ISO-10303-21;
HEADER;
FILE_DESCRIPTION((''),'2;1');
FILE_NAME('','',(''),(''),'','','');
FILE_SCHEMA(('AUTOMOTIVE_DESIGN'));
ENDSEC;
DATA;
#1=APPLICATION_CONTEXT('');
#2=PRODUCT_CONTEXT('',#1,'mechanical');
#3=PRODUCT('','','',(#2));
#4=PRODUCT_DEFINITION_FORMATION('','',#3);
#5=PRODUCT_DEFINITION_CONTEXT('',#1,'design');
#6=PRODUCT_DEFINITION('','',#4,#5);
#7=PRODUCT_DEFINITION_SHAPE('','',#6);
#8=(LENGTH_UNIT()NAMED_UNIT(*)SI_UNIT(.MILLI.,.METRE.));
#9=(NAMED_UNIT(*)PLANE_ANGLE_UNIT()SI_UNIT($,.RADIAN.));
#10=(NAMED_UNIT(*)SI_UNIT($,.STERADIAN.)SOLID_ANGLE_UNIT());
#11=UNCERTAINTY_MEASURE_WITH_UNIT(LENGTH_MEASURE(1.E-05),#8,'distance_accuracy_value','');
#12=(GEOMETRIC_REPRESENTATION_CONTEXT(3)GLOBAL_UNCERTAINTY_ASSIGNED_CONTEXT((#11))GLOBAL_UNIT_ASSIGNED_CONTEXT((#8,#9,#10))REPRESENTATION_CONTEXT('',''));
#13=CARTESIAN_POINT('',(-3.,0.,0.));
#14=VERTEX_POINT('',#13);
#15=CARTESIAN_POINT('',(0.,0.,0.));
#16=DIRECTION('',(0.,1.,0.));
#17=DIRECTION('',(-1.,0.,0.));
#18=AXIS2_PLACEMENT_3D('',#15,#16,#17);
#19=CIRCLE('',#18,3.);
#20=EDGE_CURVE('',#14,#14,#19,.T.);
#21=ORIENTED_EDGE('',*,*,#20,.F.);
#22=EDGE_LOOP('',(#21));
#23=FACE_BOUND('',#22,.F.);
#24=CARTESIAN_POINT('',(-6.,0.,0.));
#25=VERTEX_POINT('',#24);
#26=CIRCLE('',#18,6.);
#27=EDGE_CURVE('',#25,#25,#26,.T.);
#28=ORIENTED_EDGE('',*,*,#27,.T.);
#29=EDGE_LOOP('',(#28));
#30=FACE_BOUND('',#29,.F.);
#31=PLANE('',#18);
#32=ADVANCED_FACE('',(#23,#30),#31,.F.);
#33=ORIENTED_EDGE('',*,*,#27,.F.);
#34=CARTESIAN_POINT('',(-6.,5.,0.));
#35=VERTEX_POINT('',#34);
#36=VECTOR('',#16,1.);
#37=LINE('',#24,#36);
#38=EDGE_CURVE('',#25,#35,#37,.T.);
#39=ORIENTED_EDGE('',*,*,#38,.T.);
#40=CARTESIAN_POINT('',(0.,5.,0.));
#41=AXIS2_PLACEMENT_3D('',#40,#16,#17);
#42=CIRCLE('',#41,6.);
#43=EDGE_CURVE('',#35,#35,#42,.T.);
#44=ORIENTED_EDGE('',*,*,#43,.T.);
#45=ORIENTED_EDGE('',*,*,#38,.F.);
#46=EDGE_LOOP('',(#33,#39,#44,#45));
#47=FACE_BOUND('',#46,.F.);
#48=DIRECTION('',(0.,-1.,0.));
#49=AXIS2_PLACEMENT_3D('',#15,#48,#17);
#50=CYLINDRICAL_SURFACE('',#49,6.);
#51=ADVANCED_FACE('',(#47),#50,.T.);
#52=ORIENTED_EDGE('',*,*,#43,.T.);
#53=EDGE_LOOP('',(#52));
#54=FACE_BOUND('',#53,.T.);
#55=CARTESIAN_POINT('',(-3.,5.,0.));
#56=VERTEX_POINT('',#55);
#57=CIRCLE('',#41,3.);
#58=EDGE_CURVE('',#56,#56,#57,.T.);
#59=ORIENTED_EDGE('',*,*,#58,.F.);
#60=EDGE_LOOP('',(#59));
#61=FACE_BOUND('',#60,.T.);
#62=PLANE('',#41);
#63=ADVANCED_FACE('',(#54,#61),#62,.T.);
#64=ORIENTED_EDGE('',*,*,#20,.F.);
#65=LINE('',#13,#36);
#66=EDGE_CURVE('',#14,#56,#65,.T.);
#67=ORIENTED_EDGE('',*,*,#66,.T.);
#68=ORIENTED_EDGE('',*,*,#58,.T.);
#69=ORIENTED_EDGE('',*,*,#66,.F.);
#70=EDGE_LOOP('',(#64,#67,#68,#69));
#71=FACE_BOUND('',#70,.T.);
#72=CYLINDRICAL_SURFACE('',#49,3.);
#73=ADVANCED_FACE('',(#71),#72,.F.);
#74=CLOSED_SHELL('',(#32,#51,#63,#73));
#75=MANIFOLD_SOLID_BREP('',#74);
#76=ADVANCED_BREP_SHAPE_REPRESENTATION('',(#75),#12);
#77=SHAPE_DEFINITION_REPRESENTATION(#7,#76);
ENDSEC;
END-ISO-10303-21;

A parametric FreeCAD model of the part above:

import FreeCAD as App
import Part
import Sketcher
Q = App.Units.Quantity

doc = App.newDocument("Part")
body = doc.addObject("PartDesign::Body", "Body")

# Sketch on XZ plane
sketch1 = body.newObject("Sketcher::SketchObject", "Sketch")
sketch1.AttachmentSupport = (doc.getObject("XZ_Plane"), [""])
sketch1.MapMode = "FlatFace"
sketch1.addGeometry([
    Part.Circle(App.Vector(0, 0, 0), App.Vector(0, 0, 1), 6),
    Part.Circle(App.Vector(0, 0, 0), App.Vector(0, 0, 1), 3),
], False)
sketch1.addConstraint([
    Sketcher.Constraint("Coincident", 0, 3, -1, 1),
    Sketcher.Constraint("Coincident", 1, 3, -1, 1),
    Sketcher.Constraint("Diameter", 0, Q("12 mm")),
    Sketcher.Constraint("Diameter", 1, Q("6 mm")),
])
pad1 = body.newObject("PartDesign::Pad", "Pad")
pad1.Profile = sketch1
pad1.Length = 5
pad1.Reversed = True

doc.recompute()
